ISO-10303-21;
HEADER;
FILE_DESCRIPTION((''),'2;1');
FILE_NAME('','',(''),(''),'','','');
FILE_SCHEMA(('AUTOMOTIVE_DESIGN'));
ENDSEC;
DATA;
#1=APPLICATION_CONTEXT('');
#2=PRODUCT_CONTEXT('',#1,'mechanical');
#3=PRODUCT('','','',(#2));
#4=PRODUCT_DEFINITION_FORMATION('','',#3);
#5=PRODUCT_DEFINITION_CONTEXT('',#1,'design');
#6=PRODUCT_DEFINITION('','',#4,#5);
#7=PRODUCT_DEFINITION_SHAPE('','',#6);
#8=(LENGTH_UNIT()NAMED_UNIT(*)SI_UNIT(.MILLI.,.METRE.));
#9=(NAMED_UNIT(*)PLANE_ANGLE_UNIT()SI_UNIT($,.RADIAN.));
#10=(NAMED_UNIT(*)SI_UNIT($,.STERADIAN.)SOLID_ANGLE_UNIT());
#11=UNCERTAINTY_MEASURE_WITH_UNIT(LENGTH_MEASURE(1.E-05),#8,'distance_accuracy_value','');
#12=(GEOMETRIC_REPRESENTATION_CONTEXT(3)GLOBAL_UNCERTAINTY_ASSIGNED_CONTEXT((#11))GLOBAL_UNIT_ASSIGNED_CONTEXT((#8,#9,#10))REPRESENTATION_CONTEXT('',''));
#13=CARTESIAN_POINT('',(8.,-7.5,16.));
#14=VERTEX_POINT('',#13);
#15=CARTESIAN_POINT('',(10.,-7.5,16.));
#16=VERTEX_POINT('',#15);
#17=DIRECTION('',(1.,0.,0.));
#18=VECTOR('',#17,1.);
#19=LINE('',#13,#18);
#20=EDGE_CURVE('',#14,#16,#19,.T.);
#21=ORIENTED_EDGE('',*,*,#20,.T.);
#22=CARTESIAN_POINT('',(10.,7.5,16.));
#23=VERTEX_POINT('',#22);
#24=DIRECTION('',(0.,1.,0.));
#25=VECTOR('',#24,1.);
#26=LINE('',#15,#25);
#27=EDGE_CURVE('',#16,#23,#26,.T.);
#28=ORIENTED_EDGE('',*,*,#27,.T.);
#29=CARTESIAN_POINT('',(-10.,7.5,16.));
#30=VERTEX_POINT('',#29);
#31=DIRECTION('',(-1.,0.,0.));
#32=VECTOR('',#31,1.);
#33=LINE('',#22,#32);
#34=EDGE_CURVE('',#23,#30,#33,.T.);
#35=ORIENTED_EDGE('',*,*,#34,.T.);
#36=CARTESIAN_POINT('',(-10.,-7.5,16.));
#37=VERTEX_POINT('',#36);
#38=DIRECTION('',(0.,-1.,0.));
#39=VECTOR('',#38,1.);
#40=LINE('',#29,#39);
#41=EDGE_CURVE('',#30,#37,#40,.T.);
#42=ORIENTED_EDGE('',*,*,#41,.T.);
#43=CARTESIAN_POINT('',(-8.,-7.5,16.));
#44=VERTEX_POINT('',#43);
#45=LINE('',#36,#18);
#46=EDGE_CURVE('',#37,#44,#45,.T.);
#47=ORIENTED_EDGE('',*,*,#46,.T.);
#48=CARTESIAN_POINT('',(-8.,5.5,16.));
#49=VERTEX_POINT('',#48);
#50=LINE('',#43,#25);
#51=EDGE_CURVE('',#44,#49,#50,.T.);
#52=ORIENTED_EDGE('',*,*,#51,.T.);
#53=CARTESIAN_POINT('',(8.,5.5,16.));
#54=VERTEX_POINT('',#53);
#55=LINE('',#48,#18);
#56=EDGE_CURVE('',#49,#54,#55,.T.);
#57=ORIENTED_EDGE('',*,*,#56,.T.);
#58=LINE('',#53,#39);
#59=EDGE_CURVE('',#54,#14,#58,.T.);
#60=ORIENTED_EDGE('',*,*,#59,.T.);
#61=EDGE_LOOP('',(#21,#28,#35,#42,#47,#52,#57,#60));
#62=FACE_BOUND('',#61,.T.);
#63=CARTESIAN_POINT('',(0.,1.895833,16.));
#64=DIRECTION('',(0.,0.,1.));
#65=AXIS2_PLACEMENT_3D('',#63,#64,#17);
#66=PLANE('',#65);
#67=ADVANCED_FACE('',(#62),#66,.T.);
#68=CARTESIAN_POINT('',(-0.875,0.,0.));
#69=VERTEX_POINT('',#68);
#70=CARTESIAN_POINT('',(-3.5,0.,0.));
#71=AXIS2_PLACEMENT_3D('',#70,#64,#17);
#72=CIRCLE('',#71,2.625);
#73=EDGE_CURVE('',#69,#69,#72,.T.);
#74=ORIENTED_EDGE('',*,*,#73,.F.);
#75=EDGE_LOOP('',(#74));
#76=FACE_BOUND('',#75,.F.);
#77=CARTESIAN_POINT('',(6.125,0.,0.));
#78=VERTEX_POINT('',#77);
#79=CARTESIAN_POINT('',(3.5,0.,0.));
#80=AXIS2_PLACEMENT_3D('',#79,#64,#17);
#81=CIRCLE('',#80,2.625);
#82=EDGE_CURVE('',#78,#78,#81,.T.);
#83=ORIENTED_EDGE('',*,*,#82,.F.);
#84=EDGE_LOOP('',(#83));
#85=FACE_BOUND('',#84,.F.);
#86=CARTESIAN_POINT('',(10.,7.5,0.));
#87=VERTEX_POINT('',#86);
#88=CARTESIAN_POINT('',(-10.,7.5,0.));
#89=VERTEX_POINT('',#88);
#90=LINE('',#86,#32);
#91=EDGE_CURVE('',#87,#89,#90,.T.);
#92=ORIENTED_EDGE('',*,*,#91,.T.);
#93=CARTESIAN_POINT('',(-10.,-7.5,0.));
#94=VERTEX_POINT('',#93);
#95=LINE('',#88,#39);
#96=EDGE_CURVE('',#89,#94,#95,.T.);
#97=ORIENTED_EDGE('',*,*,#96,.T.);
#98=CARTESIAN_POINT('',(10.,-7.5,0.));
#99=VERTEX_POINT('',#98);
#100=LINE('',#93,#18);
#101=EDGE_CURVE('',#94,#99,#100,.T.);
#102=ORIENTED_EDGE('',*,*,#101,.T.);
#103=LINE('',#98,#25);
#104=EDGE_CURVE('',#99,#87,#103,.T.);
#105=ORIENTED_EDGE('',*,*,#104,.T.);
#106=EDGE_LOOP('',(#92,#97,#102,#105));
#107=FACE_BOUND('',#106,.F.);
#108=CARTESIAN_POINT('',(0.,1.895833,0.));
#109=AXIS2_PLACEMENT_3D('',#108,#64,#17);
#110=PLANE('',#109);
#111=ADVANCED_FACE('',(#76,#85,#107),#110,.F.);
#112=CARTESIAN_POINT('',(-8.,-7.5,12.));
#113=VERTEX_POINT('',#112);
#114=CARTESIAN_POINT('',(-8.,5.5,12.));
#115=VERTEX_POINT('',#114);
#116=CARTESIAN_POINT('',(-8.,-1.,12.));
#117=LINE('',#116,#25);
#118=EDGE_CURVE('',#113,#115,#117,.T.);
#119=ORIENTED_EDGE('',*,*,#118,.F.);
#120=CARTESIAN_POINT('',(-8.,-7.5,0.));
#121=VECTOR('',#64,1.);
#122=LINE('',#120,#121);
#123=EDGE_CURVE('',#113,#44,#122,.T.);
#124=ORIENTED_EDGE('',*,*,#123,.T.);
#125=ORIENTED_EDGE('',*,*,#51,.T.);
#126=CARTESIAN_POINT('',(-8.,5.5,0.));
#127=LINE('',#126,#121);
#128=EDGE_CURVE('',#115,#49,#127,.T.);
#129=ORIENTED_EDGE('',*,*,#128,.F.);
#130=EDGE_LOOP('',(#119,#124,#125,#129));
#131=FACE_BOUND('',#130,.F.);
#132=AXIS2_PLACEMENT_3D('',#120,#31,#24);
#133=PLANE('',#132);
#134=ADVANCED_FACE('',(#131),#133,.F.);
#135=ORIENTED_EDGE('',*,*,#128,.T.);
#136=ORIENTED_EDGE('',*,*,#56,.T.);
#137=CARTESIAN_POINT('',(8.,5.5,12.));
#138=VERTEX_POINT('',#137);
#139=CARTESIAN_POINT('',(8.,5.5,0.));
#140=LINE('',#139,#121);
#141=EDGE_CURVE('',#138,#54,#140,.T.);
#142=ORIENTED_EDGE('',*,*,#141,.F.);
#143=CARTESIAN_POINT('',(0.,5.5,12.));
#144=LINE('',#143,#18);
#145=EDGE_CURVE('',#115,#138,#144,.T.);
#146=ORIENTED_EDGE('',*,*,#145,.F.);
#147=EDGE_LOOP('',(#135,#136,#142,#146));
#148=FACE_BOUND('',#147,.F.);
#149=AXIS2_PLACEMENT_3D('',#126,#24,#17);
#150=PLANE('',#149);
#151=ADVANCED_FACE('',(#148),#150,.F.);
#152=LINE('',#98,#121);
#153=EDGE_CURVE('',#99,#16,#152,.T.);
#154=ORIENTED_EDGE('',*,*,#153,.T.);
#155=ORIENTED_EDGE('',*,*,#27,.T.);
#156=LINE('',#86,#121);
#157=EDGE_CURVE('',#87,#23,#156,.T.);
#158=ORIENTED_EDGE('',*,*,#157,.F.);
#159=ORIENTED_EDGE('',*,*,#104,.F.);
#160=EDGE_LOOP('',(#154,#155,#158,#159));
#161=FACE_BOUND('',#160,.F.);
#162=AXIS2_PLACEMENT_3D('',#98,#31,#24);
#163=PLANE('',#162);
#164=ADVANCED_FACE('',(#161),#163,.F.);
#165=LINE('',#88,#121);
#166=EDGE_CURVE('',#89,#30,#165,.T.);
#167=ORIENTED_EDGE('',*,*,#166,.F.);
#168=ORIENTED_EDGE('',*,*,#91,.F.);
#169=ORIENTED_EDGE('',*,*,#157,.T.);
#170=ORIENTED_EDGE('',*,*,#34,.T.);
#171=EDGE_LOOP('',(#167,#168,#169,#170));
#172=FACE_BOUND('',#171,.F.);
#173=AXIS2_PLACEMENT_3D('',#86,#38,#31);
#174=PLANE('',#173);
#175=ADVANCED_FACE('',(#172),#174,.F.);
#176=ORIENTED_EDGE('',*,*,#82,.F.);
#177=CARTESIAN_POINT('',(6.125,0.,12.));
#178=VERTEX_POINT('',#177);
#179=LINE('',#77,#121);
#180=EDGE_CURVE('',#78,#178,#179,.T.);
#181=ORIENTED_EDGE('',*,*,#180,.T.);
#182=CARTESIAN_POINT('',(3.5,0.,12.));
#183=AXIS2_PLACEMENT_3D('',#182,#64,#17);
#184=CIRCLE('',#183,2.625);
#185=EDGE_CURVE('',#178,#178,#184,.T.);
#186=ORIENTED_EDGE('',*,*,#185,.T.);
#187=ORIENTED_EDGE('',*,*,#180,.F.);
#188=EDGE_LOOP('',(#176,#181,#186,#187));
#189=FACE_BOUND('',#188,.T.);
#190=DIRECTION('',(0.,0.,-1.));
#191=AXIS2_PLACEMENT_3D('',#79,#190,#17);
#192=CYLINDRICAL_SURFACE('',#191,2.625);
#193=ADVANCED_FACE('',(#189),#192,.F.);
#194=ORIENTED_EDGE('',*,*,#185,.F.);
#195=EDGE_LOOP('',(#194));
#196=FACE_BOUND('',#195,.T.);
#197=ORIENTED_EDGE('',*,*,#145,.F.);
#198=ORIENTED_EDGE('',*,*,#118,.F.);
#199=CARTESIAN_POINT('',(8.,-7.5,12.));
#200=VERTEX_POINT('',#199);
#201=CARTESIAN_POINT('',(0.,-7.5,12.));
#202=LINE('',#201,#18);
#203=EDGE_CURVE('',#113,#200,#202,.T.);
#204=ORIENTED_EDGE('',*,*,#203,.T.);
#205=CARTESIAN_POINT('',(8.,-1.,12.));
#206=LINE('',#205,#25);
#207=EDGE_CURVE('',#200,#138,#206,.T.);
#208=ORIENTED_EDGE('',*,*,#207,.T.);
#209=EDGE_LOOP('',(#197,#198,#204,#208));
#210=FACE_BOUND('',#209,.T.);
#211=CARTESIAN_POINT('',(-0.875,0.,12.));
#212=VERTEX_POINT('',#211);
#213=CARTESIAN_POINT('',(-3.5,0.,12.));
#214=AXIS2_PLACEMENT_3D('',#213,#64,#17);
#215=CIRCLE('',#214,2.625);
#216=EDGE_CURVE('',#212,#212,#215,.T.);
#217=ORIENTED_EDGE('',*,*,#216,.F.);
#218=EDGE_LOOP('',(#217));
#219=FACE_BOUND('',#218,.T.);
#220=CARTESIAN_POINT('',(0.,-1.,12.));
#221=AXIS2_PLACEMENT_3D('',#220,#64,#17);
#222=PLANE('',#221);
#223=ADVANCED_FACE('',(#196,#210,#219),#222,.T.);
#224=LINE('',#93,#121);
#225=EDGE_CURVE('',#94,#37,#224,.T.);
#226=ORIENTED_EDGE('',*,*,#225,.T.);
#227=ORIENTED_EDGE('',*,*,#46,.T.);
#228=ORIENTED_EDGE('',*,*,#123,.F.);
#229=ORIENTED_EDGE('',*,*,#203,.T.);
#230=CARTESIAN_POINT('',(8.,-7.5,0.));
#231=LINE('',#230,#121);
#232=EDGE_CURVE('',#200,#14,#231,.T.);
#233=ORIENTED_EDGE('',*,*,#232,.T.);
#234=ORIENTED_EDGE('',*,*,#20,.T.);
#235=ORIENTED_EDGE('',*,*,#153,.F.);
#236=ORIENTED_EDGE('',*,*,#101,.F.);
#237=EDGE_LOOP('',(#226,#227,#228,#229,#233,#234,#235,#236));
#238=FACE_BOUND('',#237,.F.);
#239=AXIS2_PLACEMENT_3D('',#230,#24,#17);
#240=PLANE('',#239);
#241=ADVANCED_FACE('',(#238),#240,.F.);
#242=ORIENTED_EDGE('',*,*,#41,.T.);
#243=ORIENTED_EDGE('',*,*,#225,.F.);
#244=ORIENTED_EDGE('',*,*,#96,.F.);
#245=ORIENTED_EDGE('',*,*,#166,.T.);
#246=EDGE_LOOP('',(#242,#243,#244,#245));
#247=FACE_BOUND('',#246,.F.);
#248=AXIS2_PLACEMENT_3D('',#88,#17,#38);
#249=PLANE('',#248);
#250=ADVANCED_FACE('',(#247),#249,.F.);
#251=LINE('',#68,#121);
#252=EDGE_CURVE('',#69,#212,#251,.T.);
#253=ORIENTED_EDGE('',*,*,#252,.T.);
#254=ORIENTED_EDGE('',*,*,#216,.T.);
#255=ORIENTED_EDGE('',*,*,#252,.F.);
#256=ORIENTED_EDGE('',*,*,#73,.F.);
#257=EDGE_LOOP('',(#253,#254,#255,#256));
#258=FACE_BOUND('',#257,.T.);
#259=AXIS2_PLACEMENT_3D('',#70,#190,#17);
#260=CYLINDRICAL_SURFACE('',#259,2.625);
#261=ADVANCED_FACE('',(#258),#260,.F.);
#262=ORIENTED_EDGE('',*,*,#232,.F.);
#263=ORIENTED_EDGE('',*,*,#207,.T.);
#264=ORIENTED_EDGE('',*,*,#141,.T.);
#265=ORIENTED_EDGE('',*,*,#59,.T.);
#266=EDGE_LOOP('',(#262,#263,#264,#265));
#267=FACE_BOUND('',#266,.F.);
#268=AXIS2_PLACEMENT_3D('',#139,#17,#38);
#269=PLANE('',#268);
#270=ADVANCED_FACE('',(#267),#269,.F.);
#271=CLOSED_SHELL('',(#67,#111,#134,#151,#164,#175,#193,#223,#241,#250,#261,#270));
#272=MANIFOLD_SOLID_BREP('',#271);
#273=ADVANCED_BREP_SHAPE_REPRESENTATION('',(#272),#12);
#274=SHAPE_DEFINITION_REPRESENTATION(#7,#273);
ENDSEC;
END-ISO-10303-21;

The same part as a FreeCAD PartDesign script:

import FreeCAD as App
import Part
import Sketcher
from FreeCAD import Vector
Q = App.Units.Quantity

doc = App.newDocument("Part")
body = doc.addObject("PartDesign::Body", "Body")

# Sketch on XY plane
sketch1 = body.newObject("Sketcher::SketchObject", "Sketch")
sketch1.AttachmentSupport = (doc.getObject("XY_Plane"), [""])
sketch1.MapMode = "FlatFace"
sketch1.addGeometry(Part.LineSegment(Vector(-8, 5.5, 0), Vector(-8, -7.5, 0)), False)
sketch1.addGeometry(Part.LineSegment(Vector(-8, -7.5, 0), Vector(8, -7.5, 0)), False)
sketch1.addGeometry(Part.LineSegment(Vector(8, -7.5, 0), Vector(8, 5.5, 0)), False)
sketch1.addGeometry(Part.LineSegment(Vector(8, 5.5, 0), Vector(-8, 5.5, 0)), False)
sketch1.addGeometry(Part.Circle(Vector(-3.5, 0, 0), Vector(0, 0, 1), 2.6), False)
sketch1.addGeometry(Part.Circle(Vector(3.5, 0, 0), Vector(0, 0, 1), 2.6), False)
sketch1.addConstraint(Sketcher.Constraint("Coincident", 0, 2, 1, 1))
sketch1.addConstraint(Sketcher.Constraint("Coincident", 1, 2, 2, 1))
sketch1.addConstraint(Sketcher.Constraint("Coincident", 2, 2, 3, 1))
sketch1.addConstraint(Sketcher.Constraint("Coincident", 3, 2, 0, 1))
sketch1.addConstraint(Sketcher.Constraint("Vertical", 0))
sketch1.addConstraint(Sketcher.Constraint("Horizontal", 1))
sketch1.addConstraint(Sketcher.Constraint("Vertical", 2))
sketch1.addConstraint(Sketcher.Constraint("Horizontal", 3))
sketch1.addConstraint(Sketcher.Constraint("Equal", 4, 5))
sketch1.addConstraint(Sketcher.Constraint("Symmetric", 4, 3, 5, 3, -1, 1))
sketch1.addConstraint(Sketcher.Constraint("PointOnObject", 4, 3, -1))
sketch1.addConstraint(Sketcher.Constraint("Diameter", 4, Q("5.25 mm")))
sketch1.addConstraint(Sketcher.Constraint("DistanceX", 1, 1, 1, 2, Q("16 mm")))
sketch1.addConstraint(Sketcher.Constraint("DistanceY", 0, 2, 0, 1, Q("13 mm")))
sketch1.addConstraint(Sketcher.Constraint("DistanceX", 0, 2, -1, 1, Q("8 mm")))
sketch1.addConstraint(Sketcher.Constraint("DistanceX", 4, 3, 5, 3, Q("7 mm")))
sketch1.addConstraint(Sketcher.Constraint("DistanceY", 0, 2, -1, 1, Q("7.5 mm")))
pad1 = body.newObject("PartDesign::Pad", "Pad")
pad1.Profile = sketch1
pad1.Length = 12

# Sketch on XY plane
sketch2 = body.newObject("Sketcher::SketchObject", "Sketch001")
sketch2.AttachmentSupport = (doc.getObject("XY_Plane"), [""])
sketch2.MapMode = "FlatFace"
sketch2.addGeometry(Part.LineSegment(Vector(8, -7.5, 0), Vector(10, -7.5, 0)), False)
sketch2.addGeometry(Part.LineSegment(Vector(10, -7.5, 0), Vector(10, 7.5, 0)), False)
sketch2.addGeometry(Part.LineSegment(Vector(10, 7.5, 0), Vector(-10, 7.5, 0)), False)
sketch2.addGeometry(Part.LineSegment(Vector(-10, 7.5, 0), Vector(-10, -7.5, 0)), False)
sketch2.addGeometry(Part.LineSegment(Vector(-10, -7.5, 0), Vector(-8, -7.5, 0)), False)
sketch2.addGeometry(Part.LineSegment(Vector(-8, -7.5, 0), Vector(-8, 5.5, 0)), False)
sketch2.addGeometry(Part.LineSegment(Vector(-8, 5.5, 0), Vector(8, 5.5, 0)), False)
sketch2.addGeometry(Part.LineSegment(Vector(8, 5.5, 0), Vector(8, -7.5, 0)), False)
sketch2.addConstraint(Sketcher.Constraint("Coincident", 0, 2, 1, 1))
sketch2.addConstraint(Sketcher.Constraint("Coincident", 1, 2, 2, 1))
sketch2.addConstraint(Sketcher.Constraint("Coincident", 2, 2, 3, 1))
sketch2.addConstraint(Sketcher.Constraint("Coincident", 3, 2, 4, 1))
sketch2.addConstraint(Sketcher.Constraint("Coincident", 4, 2, 5, 1))
sketch2.addConstraint(Sketcher.Constraint("Coincident", 5, 2, 6, 1))
sketch2.addConstraint(Sketcher.Constraint("Coincident", 6, 2, 7, 1))
sketch2.addConstraint(Sketcher.Constraint("Coincident", 7, 2, 0, 1))
sketch2.addConstraint(Sketcher.Constraint("Horizontal", 0))
sketch2.addConstraint(Sketcher.Constraint("Vertical", 1))
sketch2.addConstraint(Sketcher.Constraint("Horizontal", 2))
sketch2.addConstraint(Sketcher.Constraint("Vertical", 3))
sketch2.addConstraint(Sketcher.Constraint("Horizontal", 4))
sketch2.addConstraint(Sketcher.Constraint("Vertical", 5))
sketch2.addConstraint(Sketcher.Constraint("Horizontal", 6))
sketch2.addConstraint(Sketcher.Constraint("Vertical", 7))
sketch2.addConstraint(Sketcher.Constraint("Symmetric", 0, 2, 2, 2, -1, 1))
sketch2.addConstraint(Sketcher.Constraint("Symmetric", 4, 2, 7, 2, -2))
sketch2.addConstraint(Sketcher.Constraint("DistanceX", 0, 1, 0, 2, Q("2 mm")))
sketch2.addConstraint(Sketcher.Constraint("DistanceX", 2, 2, 2, 1, Q("20 mm")))
sketch2.addConstraint(Sketcher.Constraint("DistanceY", 1, 1, 1, 2, Q("15 mm")))
sketch2.addConstraint(Sketcher.Constraint("DistanceY", 5, 1, 5, 2, Q("13 mm")))
pad2 = body.newObject("PartDesign::Pad", "Pad001")
pad2.Profile = sketch2
pad2.Length = 16

doc.recompute()
